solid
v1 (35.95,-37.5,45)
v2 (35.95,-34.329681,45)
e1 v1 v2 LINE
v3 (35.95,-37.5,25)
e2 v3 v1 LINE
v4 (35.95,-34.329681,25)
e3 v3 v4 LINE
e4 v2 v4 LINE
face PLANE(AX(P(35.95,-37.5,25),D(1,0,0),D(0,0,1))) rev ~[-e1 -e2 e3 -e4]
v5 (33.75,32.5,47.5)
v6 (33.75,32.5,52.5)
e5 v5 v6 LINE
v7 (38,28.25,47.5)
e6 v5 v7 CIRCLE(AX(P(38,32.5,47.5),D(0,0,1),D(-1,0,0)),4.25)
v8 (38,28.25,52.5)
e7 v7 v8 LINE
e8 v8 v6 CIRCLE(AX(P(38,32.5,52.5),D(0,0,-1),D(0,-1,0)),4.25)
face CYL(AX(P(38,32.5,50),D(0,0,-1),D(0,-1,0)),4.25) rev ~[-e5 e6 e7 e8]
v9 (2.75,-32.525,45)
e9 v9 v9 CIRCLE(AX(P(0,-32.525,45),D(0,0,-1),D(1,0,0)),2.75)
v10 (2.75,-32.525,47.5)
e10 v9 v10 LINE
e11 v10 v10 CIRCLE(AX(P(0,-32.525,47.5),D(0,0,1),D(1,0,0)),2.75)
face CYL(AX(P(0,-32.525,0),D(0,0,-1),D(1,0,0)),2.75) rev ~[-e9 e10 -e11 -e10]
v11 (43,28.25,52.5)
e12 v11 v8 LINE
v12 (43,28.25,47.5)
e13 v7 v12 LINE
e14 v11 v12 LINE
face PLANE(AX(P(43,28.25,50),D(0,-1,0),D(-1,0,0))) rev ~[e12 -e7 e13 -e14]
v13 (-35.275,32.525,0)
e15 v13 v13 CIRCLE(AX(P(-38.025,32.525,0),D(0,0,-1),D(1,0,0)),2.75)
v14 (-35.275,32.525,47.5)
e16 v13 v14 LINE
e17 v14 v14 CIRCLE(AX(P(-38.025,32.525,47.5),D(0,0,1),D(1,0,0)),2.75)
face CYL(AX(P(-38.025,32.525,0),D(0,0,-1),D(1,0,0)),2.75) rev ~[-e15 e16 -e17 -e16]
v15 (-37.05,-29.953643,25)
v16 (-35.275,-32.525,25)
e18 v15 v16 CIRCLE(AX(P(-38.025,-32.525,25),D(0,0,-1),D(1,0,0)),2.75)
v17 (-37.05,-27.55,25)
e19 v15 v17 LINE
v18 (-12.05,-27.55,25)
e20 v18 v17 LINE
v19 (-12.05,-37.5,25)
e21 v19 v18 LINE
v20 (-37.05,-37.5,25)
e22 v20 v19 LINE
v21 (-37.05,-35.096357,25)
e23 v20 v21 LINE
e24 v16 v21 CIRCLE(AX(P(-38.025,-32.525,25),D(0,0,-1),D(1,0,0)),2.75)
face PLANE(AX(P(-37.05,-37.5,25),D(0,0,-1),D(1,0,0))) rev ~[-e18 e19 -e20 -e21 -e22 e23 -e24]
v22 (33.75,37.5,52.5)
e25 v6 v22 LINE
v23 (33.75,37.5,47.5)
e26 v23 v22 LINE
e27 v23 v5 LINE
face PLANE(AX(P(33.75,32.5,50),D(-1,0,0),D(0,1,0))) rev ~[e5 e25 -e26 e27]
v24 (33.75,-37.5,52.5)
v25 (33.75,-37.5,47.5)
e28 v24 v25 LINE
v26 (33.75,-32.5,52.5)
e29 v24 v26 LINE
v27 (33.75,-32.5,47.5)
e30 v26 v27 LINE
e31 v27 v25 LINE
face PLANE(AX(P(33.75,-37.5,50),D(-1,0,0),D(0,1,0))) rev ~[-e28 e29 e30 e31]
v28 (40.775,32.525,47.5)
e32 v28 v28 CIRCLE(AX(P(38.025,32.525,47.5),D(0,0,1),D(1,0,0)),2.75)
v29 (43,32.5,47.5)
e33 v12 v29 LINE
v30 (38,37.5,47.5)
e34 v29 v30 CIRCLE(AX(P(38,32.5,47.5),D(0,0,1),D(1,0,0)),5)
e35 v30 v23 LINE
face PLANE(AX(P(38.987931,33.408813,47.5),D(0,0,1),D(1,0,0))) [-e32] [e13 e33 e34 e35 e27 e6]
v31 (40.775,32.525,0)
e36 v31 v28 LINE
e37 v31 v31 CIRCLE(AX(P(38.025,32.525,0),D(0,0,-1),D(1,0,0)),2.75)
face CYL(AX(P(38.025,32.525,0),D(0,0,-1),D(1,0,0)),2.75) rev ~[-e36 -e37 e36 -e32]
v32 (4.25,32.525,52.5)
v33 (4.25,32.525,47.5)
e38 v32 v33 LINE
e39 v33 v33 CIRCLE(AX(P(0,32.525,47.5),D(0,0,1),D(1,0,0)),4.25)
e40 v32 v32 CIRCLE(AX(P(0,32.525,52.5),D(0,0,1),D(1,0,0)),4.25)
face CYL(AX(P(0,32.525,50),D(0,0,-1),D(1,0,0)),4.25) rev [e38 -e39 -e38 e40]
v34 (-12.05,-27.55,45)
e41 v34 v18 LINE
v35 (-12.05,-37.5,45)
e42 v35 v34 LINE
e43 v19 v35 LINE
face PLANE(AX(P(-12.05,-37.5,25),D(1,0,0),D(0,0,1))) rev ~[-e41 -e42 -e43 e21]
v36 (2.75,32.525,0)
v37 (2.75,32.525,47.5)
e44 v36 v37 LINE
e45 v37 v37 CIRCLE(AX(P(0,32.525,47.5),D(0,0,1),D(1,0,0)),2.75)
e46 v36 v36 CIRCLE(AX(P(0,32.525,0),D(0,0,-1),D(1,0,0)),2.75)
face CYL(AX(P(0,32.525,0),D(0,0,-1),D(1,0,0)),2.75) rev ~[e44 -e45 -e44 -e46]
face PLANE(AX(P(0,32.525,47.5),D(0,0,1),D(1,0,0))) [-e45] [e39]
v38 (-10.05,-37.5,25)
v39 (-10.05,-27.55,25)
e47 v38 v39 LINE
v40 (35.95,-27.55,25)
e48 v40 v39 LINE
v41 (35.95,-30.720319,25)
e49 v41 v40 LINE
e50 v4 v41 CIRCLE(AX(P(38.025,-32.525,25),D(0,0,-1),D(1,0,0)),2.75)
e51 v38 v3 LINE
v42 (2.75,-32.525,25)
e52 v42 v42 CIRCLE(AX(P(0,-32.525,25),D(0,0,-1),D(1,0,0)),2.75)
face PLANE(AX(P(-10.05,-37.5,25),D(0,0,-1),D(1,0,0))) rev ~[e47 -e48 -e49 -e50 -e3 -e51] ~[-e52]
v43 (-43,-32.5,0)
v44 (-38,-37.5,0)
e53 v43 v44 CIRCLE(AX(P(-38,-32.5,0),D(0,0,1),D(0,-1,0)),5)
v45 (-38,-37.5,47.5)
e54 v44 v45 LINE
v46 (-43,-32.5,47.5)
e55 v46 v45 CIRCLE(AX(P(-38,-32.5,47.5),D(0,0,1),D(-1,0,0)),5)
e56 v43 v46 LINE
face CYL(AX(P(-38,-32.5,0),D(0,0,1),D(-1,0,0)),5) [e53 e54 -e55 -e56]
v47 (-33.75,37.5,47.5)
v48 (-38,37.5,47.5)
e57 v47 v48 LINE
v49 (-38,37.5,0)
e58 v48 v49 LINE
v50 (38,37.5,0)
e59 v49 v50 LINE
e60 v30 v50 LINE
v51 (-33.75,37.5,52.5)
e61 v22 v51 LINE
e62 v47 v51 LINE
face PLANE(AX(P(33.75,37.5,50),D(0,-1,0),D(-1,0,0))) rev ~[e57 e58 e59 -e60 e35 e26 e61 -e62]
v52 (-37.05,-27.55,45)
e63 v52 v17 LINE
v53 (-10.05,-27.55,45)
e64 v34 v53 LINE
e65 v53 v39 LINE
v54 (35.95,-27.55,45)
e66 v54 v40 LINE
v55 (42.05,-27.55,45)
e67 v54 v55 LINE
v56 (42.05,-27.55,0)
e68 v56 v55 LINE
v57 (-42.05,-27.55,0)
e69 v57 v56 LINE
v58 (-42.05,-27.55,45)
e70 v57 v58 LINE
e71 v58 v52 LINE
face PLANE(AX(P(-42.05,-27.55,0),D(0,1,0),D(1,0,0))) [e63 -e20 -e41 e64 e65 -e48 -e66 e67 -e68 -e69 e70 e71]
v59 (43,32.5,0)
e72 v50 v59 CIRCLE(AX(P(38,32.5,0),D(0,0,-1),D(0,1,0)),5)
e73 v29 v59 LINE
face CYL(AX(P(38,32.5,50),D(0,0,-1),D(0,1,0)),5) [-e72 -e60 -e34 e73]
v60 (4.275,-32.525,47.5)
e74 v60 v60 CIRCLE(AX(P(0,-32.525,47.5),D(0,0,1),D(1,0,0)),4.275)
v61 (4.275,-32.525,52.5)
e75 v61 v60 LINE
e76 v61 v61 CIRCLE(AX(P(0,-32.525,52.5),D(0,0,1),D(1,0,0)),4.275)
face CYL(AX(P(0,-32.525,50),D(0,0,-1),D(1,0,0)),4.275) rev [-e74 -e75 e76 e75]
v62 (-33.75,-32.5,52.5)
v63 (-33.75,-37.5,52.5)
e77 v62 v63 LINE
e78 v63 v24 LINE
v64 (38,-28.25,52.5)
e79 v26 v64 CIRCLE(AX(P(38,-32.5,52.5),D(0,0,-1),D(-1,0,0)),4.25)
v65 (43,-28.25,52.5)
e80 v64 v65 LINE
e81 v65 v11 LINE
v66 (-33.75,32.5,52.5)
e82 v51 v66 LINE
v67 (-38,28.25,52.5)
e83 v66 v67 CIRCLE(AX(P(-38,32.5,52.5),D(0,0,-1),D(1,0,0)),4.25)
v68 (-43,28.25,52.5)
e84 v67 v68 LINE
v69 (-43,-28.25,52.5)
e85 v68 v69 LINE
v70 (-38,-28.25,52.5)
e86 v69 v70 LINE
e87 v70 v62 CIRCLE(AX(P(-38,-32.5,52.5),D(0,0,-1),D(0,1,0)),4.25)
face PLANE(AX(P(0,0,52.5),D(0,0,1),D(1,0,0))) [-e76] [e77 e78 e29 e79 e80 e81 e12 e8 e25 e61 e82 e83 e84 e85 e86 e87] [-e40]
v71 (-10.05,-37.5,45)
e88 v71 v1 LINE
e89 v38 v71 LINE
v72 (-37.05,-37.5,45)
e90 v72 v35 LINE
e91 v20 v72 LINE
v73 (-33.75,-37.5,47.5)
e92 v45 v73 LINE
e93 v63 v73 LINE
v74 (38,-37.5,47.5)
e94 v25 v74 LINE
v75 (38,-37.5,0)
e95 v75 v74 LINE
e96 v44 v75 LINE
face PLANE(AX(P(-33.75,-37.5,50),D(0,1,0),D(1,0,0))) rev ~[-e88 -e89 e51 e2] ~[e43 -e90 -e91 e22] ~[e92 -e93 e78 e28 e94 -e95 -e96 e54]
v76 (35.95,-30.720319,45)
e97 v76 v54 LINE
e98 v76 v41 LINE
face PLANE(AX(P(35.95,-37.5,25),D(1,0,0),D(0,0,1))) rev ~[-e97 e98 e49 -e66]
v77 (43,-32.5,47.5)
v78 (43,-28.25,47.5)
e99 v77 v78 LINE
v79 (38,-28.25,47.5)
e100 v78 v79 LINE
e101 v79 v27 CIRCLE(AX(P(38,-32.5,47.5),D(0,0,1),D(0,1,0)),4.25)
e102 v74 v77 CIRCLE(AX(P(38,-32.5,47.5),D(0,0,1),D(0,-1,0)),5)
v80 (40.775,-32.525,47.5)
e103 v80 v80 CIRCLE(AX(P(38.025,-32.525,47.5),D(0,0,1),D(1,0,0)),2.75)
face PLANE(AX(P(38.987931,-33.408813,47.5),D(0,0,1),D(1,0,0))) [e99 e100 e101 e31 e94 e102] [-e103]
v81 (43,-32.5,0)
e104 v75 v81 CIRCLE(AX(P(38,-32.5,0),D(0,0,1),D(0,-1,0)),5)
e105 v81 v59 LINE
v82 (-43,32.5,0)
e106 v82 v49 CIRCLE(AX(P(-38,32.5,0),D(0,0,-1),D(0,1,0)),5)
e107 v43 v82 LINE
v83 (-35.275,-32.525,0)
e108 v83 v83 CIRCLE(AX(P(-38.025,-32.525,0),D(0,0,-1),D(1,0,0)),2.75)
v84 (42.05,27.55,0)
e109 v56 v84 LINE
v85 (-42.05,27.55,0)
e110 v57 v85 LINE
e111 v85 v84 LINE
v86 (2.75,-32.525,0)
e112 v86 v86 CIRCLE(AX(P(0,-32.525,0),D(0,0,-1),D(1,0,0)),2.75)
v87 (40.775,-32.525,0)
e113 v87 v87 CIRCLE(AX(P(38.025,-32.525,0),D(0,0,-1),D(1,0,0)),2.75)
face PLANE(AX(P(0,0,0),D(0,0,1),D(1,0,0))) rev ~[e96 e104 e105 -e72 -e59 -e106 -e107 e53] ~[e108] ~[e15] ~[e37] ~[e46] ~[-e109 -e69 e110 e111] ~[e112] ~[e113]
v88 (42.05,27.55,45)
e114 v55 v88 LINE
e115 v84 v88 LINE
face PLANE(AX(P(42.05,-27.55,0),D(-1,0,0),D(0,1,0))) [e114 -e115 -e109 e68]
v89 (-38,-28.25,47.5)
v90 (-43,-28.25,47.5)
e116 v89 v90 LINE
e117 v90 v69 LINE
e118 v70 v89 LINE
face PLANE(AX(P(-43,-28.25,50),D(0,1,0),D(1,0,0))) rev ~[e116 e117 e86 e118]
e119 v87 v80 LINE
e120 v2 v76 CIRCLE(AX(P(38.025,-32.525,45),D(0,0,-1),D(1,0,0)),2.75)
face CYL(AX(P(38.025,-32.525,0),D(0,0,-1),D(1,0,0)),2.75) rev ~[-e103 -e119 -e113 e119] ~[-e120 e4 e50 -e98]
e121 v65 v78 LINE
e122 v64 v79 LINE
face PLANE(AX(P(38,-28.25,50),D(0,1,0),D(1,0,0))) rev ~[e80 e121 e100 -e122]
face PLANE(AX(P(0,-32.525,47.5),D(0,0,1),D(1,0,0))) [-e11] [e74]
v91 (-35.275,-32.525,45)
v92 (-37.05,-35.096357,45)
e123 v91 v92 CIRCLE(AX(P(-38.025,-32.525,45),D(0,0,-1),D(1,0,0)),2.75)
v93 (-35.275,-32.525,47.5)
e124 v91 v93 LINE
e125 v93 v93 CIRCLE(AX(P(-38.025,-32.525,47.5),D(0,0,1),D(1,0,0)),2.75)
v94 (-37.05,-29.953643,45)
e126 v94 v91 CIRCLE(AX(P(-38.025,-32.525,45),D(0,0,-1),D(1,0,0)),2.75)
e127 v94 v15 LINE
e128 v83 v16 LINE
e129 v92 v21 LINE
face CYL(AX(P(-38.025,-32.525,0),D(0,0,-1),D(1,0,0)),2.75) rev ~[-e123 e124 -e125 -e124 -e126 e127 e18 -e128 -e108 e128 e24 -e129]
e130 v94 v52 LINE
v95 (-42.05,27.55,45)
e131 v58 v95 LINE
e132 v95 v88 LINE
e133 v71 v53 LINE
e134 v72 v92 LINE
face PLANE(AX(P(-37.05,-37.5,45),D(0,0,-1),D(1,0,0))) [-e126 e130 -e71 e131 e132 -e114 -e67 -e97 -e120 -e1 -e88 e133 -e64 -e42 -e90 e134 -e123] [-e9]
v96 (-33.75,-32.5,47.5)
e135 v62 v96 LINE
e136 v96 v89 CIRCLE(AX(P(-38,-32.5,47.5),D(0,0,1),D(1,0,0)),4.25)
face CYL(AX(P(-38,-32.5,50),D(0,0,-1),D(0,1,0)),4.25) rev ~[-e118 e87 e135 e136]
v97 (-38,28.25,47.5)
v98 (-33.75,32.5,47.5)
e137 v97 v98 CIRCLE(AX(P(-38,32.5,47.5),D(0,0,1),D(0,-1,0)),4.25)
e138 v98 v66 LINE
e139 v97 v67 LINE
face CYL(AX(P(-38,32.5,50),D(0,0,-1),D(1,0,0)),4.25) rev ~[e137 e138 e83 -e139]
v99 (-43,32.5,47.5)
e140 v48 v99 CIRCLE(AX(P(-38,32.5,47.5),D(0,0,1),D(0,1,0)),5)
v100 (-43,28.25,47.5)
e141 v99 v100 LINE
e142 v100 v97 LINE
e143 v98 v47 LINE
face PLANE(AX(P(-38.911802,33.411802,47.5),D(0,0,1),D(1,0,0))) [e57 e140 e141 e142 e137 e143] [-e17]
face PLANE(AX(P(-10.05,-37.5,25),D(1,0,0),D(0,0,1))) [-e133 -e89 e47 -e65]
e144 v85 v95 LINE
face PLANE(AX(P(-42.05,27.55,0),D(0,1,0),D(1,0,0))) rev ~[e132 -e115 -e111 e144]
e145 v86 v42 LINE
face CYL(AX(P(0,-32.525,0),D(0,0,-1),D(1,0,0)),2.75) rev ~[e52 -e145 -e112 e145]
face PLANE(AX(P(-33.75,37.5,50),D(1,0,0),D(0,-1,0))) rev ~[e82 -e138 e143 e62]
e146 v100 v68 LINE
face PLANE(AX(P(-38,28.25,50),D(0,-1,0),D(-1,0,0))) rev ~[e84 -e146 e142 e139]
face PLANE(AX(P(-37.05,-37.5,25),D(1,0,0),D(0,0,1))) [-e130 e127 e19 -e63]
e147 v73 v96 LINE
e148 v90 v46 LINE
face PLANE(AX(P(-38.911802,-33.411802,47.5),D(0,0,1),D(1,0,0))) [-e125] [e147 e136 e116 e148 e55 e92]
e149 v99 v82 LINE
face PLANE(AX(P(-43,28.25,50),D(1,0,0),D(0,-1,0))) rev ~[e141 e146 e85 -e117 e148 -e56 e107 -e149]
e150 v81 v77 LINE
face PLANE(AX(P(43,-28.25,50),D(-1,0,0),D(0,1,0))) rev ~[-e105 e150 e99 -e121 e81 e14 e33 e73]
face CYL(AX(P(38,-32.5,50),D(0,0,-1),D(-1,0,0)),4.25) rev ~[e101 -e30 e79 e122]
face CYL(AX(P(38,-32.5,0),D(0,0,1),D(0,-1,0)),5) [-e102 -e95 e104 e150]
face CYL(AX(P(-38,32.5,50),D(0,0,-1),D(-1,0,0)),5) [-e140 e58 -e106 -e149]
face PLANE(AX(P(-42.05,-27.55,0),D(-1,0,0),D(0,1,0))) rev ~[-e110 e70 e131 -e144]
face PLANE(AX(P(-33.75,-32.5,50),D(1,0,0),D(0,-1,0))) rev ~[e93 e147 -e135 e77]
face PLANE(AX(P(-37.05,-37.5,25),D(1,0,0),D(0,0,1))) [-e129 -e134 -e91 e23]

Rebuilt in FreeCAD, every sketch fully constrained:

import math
import FreeCAD as App
import Part
import Sketcher


def edges_at(feature, points):
    """Names of the edges that pass closest to the given points."""
    edges = feature.Shape.Edges
    near = lambda p: min(range(len(edges)), key=lambda i: edges[i].distToShape(Part.Vertex(*p))[0])
    return sorted({f"Edge{near(p) + 1}" for p in points})

doc = App.newDocument("Part")
params = doc.addObject("Spreadsheet::Sheet", "Params")
for row, (alias, value) in enumerate([
    ("sketch1_width", "86 mm"),
    ("sketch1_height", "75 mm"),
    ("sketch1_width2", "84.1 mm"),
    ("sketch1_height2", "55.1 mm"),
    ("pad1_length", "45 mm"),
    ("sketch2_width", "86 mm"),
    ("sketch2_height", "75 mm"),
    ("pad2_length", "5 mm"),
    ("sketch3_width", "25 mm"),
    ("sketch3_width2", "46 mm"),
    ("sketch3_height", "20 mm"),
    ("pocket1_length", "25 mm"),
    ("sketch4_diameter", "5.5 mm"),
    ("fillet_radius", "5 mm"),
    ("sketch5_radius", "5 mm"),
    ("sketch5_diameter", "5.5 mm"),
    ("sketch5_diameter2", "8.5 mm"),
    ("sketch5_diameter3", "8.55 mm"),
    ("pocket3_length", "2.5 mm"),
    ("sketch6_diameter", "8.5 mm"),
    ("sketch6_diameter2", "8.55 mm"),
    ("sketch6_width", "5 mm"),
    ("sketch6_width2", "67.5 mm"),
    ("sketch6_height", "56.5 mm"),
    ("pad3_length", "2.5 mm"),
], start=1):
    params.set(f"A{row}", alias)
    params.set(f"B{row}", "=" + value)
    params.setAlias(f"B{row}", alias)

body = doc.addObject("PartDesign::Body", "Body")

# Sketch on XY plane
sketch1 = body.newObject("Sketcher::SketchObject", "Sketch")
sketch1.AttachmentSupport = (doc.getObject("XY_Plane"), [""])
sketch1.MapMode = "FlatFace"
sketch1.addGeometry(Part.LineSegment(App.Vector(-43, 38, 0), App.Vector(-43, -38, 0)), False)
sketch1.addGeometry(Part.LineSegment(App.Vector(-43, -38, 0), App.Vector(43, -38, 0)), False)
sketch1.addGeometry(Part.LineSegment(App.Vector(43, -38, 0), App.Vector(43, 38, 0)), False)
sketch1.addGeometry(Part.LineSegment(App.Vector(43, 38, 0), App.Vector(-43, 38, 0)), False)
sketch1.addGeometry(Part.LineSegment(App.Vector(42, -28, 0), App.Vector(-42, -28, 0)), False)
sketch1.addGeometry(Part.LineSegment(App.Vector(-42, -28, 0), App.Vector(-42, 28, 0)), False)
sketch1.addGeometry(Part.LineSegment(App.Vector(-42, 28, 0), App.Vector(42, 28, 0)), False)
sketch1.addGeometry(Part.LineSegment(App.Vector(42, 28, 0), App.Vector(42, -28, 0)), False)
sketch1.addConstraint(Sketcher.Constraint("Coincident", 0, 2, 1, 1))
sketch1.addConstraint(Sketcher.Constraint("Coincident", 1, 2, 2, 1))
sketch1.addConstraint(Sketcher.Constraint("Coincident", 2, 2, 3, 1))
sketch1.addConstraint(Sketcher.Constraint("Coincident", 3, 2, 0, 1))
sketch1.addConstraint(Sketcher.Constraint("Coincident", 4, 2, 5, 1))
sketch1.addConstraint(Sketcher.Constraint("Coincident", 5, 2, 6, 1))
sketch1.addConstraint(Sketcher.Constraint("Coincident", 6, 2, 7, 1))
sketch1.addConstraint(Sketcher.Constraint("Coincident", 7, 2, 4, 1))
sketch1.addConstraint(Sketcher.Constraint("Vertical", 0))
sketch1.addConstraint(Sketcher.Constraint("Horizontal", 1))
sketch1.addConstraint(Sketcher.Constraint("Vertical", 2))
sketch1.addConstraint(Sketcher.Constraint("Horizontal", 3))
sketch1.addConstraint(Sketcher.Constraint("Horizontal", 4))
sketch1.addConstraint(Sketcher.Constraint("Vertical", 5))
sketch1.addConstraint(Sketcher.Constraint("Horizontal", 6))
sketch1.addConstraint(Sketcher.Constraint("Vertical", 7))
sketch1.addConstraint(Sketcher.Constraint("Symmetric", 0, 2, 2, 2, -1, 1))
sketch1.addConstraint(Sketcher.Constraint("Symmetric", 4, 2, 6, 2, -1, 1))
sketch1.addConstraint(Sketcher.Constraint("DistanceX", 1, 1, 1, 2, 86.0))
sketch1.addConstraint(Sketcher.Constraint("DistanceY", 0, 2, 0, 1, 75.0))
sketch1.addConstraint(Sketcher.Constraint("DistanceX", 4, 2, 4, 1, 84.1))
sketch1.addConstraint(Sketcher.Constraint("DistanceY", 5, 1, 5, 2, 55.1))
sketch1.setExpression("Constraints[18]", "Params.sketch1_width")
sketch1.setExpression("Constraints[19]", "Params.sketch1_height")
sketch1.setExpression("Constraints[20]", "Params.sketch1_width2")
sketch1.setExpression("Constraints[21]", "Params.sketch1_height2")
pad1 = body.newObject("PartDesign::Pad", "Pad")
pad1.Profile = sketch1
pad1.setExpression("Length", "Params.pad1_length")

# Sketch on XY plane
sketch2 = body.newObject("Sketcher::SketchObject", "Sketch001")
sketch2.AttachmentSupport = (doc.getObject("XY_Plane"), [""])
sketch2.MapMode = "FlatFace"
sketch2.AttachmentOffset = App.Placement(App.Vector(0, 0, 45), App.Rotation())
sketch2.addGeometry(Part.LineSegment(App.Vector(-43, 38, 0), App.Vector(-43, -38, 0)), False)
sketch2.addGeometry(Part.LineSegment(App.Vector(-43, -38, 0), App.Vector(43, -38, 0)), False)
sketch2.addGeometry(Part.LineSegment(App.Vector(43, -38, 0), App.Vector(43, 38, 0)), False)
sketch2.addGeometry(Part.LineSegment(App.Vector(43, 38, 0), App.Vector(-43, 38, 0)), False)
sketch2.addConstraint(Sketcher.Constraint("Coincident", 0, 2, 1, 1))
sketch2.addConstraint(Sketcher.Constraint("Coincident", 1, 2, 2, 1))
sketch2.addConstraint(Sketcher.Constraint("Coincident", 2, 2, 3, 1))
sketch2.addConstraint(Sketcher.Constraint("Coincident", 3, 2, 0, 1))
sketch2.addConstraint(Sketcher.Constraint("Vertical", 0))
sketch2.addConstraint(Sketcher.Constraint("Horizontal", 1))
sketch2.addConstraint(Sketcher.Constraint("Vertical", 2))
sketch2.addConstraint(Sketcher.Constraint("Horizontal", 3))
sketch2.addConstraint(Sketcher.Constraint("Symmetric", 0, 2, 2, 2, -1, 1))
sketch2.addConstraint(Sketcher.Constraint("DistanceX", 1, 1, 1, 2, 86.0))
sketch2.addConstraint(Sketcher.Constraint("DistanceY", 0, 2, 0, 1, 75.0))
sketch2.setExpression("Constraints[9]", "Params.sketch2_width")
sketch2.setExpression("Constraints[10]", "Params.sketch2_height")
pad2 = body.newObject("PartDesign::Pad", "Pad001")
pad2.Profile = sketch2
pad2.setExpression("Length", "Params.pad2_length")

# Sketch on XZ plane
sketch3 = body.newObject("Sketcher::SketchObject", "Sketch002")
sketch3.AttachmentSupport = (doc.getObject("XZ_Plane"), [""])
sketch3.MapMode = "FlatFace"
sketch3.AttachmentOffset = App.Placement(App.Vector(0, 0, 37.5), App.Rotation())
sketch3.addGeometry(Part.LineSegment(App.Vector(-37, 45, 0), App.Vector(-37, 25, 0)), False)
sketch3.addGeometry(Part.LineSegment(App.Vector(-37, 25, 0), App.Vector(-12, 25, 0)), False)
sketch3.addGeometry(Part.LineSegment(App.Vector(-12, 25, 0), App.Vector(-12, 45, 0)), False)
sketch3.addGeometry(Part.LineSegment(App.Vector(-12, 45, 0), App.Vector(-37, 45, 0)), False)
sketch3.addGeometry(Part.LineSegment(App.Vector(-10, 45, 0), App.Vector(-10, 25, 0)), False)
sketch3.addGeometry(Part.LineSegment(App.Vector(-10, 25, 0), App.Vector(36, 25, 0)), False)
sketch3.addGeometry(Part.LineSegment(App.Vector(36, 25, 0), App.Vector(36, 45, 0)), False)
sketch3.addGeometry(Part.LineSegment(App.Vector(36, 45, 0), App.Vector(-10, 45, 0)), False)
sketch3.addConstraint(Sketcher.Constraint("Coincident", 0, 2, 1, 1))
sketch3.addConstraint(Sketcher.Constraint("Coincident", 1, 2, 2, 1))
sketch3.addConstraint(Sketcher.Constraint("Coincident", 2, 2, 3, 1))
sketch3.addConstraint(Sketcher.Constraint("Coincident", 3, 2, 0, 1))
sketch3.addConstraint(Sketcher.Constraint("Coincident", 4, 2, 5, 1))
sketch3.addConstraint(Sketcher.Constraint("Coincident", 5, 2, 6, 1))
sketch3.addConstraint(Sketcher.Constraint("Coincident", 6, 2, 7, 1))
sketch3.addConstraint(Sketcher.Constraint("Coincident", 7, 2, 4, 1))
sketch3.addConstraint(Sketcher.Constraint("Vertical", 0))
sketch3.addConstraint(Sketcher.Constraint("Horizontal", 1))
sketch3.addConstraint(Sketcher.Constraint("Vertical", 2))
sketch3.addConstraint(Sketcher.Constraint("Horizontal", 3))
sketch3.addConstraint(Sketcher.Constraint("Vertical", 4))
sketch3.addConstraint(Sketcher.Constraint("Horizontal", 5))
sketch3.addConstraint(Sketcher.Constraint("Vertical", 6))
sketch3.addConstraint(Sketcher.Constraint("Horizontal", 7))
sketch3.addConstraint(Sketcher.Constraint("Horizontal", 1, 2, 4, 2))
sketch3.addConstraint(Sketcher.Constraint("Horizontal", 3, 2, 6, 2))
sketch3.addConstraint(Sketcher.Constraint("DistanceX", 1, 1, 1, 2, 25.0))
sketch3.addConstraint(Sketcher.Constraint("DistanceX", 5, 1, 5, 2, 46.0))
sketch3.addConstraint(Sketcher.Constraint("DistanceY", 0, 2, 0, 1, 20.0))
sketch3.addConstraint(Sketcher.Constraint("DistanceY", -1, 1, 0, 2, 25.0))
sketch3.addConstraint(Sketcher.Constraint("DistanceX", 1, 2, 4, 2, 2.0))
sketch3.addConstraint(Sketcher.Constraint("DistanceX", 0, 2, -1, 1, 37.05))
sketch3.setExpression("Constraints[18]", "Params.sketch3_width")
sketch3.setExpression("Constraints[19]", "Params.sketch3_width2")
sketch3.setExpression("Constraints[20]", "Params.sketch3_height")
pocket1 = body.newObject("PartDesign::Pocket", "Pocket")
pocket1.Profile = sketch3
pocket1.setExpression("Length", "Params.pocket1_length")

# Sketch on XY plane
sketch4 = body.newObject("Sketcher::SketchObject", "Sketch003")
sketch4.AttachmentSupport = (doc.getObject("XY_Plane"), [""])
sketch4.MapMode = "FlatFace"
sketch4.addGeometry(Part.Circle(App.Vector(-38, -32.5, 0), App.Vector(0, 0, 1), 2.8), False)
sketch4.addGeometry(Part.Circle(App.Vector(0, -32.5, 0), App.Vector(0, 0, 1), 2.8), False)
sketch4.addGeometry(Part.Circle(App.Vector(38, -32.5, 0), App.Vector(0, 0, 1), 2.8), False)
sketch4.addGeometry(Part.Circle(App.Vector(38, 32.5, 0), App.Vector(0, 0, 1), 2.8), False)
sketch4.addGeometry(Part.Circle(App.Vector(0, 32.5, 0), App.Vector(0, 0, 1), 2.8), False)
sketch4.addGeometry(Part.Circle(App.Vector(-38, 32.5, 0), App.Vector(0, 0, 1), 2.8), False)
sketch4.addConstraint(Sketcher.Constraint("Equal", 0, 1))
sketch4.addConstraint(Sketcher.Constraint("Equal", 1, 2))
sketch4.addConstraint(Sketcher.Constraint("Equal", 2, 3))
sketch4.addConstraint(Sketcher.Constraint("Equal", 3, 4))
sketch4.addConstraint(Sketcher.Constraint("Equal", 4, 5))
sketch4.addConstraint(Sketcher.Constraint("Symmetric", 0, 3, 3, 3, -1, 1))
sketch4.addConstraint(Sketcher.Constraint("Symmetric", 1, 3, 4, 3, -1, 1))
sketch4.addConstraint(Sketcher.Constraint("Symmetric", 2, 3, 5, 3, -1, 1))
sketch4.addConstraint(Sketcher.Constraint("Symmetric", 0, 3, 2, 3, -2))
sketch4.addConstraint(Sketcher.Constraint("PointOnObject", 1, 3, -2))
sketch4.addConstraint(Sketcher.Constraint("Horizontal", 0, 3, 1, 3))
sketch4.addConstraint(Sketcher.Constraint("Diameter", 0, 5.5))
sketch4.addConstraint(Sketcher.Constraint("DistanceX", 0, 3, 2, 3, 76.05))
sketch4.addConstraint(Sketcher.Constraint("DistanceY", 2, 3, 3, 3, 65.05))
sketch4.setExpression("Constraints[11]", "Params.sketch4_diameter")
pocket2 = body.newObject("PartDesign::Pocket", "Pocket001")
pocket2.Profile = sketch4
pocket2.Type = "ThroughAll"
pocket2.Reversed = True
doc.recompute()

fillet = body.newObject("PartDesign::Fillet", "Fillet")
fillet.Base = (pocket2, edges_at(pocket2, [
    (43, -37.5, 25),
    (43, 37.5, 25),
    (-43, 37.5, 25),
    (-43, -37.5, 25),
]))
fillet.setExpression("Radius", "Params.fillet_radius")

# Sketch on XY plane
sketch5 = body.newObject("Sketcher::SketchObject", "Sketch004")
sketch5.AttachmentSupport = (doc.getObject("XY_Plane"), [""])
sketch5.MapMode = "FlatFace"
sketch5.AttachmentOffset = App.Placement(App.Vector(0, 0, 50), App.Rotation())
sketch5.addGeometry(Part.LineSegment(App.Vector(-38, -37.5, 0), App.Vector(-33.8, -37.5, 0)), False)
sketch5.addGeometry(Part.LineSegment(App.Vector(-33.8, -37.5, 0), App.Vector(-33.8, -32.5, 0)), False)
sketch5.addGeometry(Part.ArcOfCircle(Part.Circle(App.Vector(-38, -32.5, 0), App.Vector(0, 0, 1), 4.2), math.radians(0), math.radians(90)), False)
sketch5.addGeometry(Part.LineSegment(App.Vector(-38, -28.2, 0), App.Vector(-43, -28.2, 0)), False)
sketch5.addGeometry(Part.LineSegment(App.Vector(-43, -28.2, 0), App.Vector(-43, -32.5, 0)), False)
sketch5.addGeometry(Part.ArcOfCircle(Part.Circle(App.Vector(-38, -32.5, 0), App.Vector(0, 0, 1), 5), math.radians(180), math.radians(270)), False)
sketch5.addGeometry(Part.Circle(App.Vector(-38, -32.5, 0), App.Vector(0, 0, 1), 2.8), False)
sketch5.addGeometry(Part.Circle(App.Vector(0, -32.5, 0), App.Vector(0, 0, 1), 4.3), False)
sketch5.addGeometry(Part.Circle(App.Vector(0, -32.5, 0), App.Vector(0, 0, 1), 2.8), False)
sketch5.addGeometry(Part.ArcOfCircle(Part.Circle(App.Vector(38, -32.5, 0), App.Vector(0, 0, 1), 5), math.radians(-90), math.radians(0)), False)
sketch5.addGeometry(Part.LineSegment(App.Vector(43, -32.5, 0), App.Vector(43, -28.2, 0)), False)
sketch5.addGeometry(Part.LineSegment(App.Vector(43, -28.2, 0), App.Vector(38, -28.2, 0)), False)
sketch5.addGeometry(Part.ArcOfCircle(Part.Circle(App.Vector(38, -32.5, 0), App.Vector(0, 0, 1), 4.2), math.radians(90), math.radians(180)), False)
sketch5.addGeometry(Part.LineSegment(App.Vector(33.8, -32.5, 0), App.Vector(33.8, -37.5, 0)), False)
sketch5.addGeometry(Part.LineSegment(App.Vector(33.8, -37.5, 0), App.Vector(38, -37.5, 0)), False)
sketch5.addGeometry(Part.Circle(App.Vector(38, -32.5, 0), App.Vector(0, 0, 1), 2.8), False)
sketch5.addGeometry(Part.Circle(App.Vector(0, 32.5, 0), App.Vector(0, 0, 1), 4.2), False)
sketch5.addGeometry(Part.Circle(App.Vector(0, 32.5, 0), App.Vector(0, 0, 1), 2.8), False)
sketch5.addGeometry(Part.LineSegment(App.Vector(-33.8, 32.5, 0), App.Vector(-33.8, 37.5, 0)), False)
sketch5.addGeometry(Part.LineSegment(App.Vector(-33.8, 37.5, 0), App.Vector(-38, 37.5, 0)), False)
sketch5.addGeometry(Part.ArcOfCircle(Part.Circle(App.Vector(-38, 32.5, 0), App.Vector(0, 0, 1), 5), math.radians(90), math.radians(180)), False)
sketch5.addGeometry(Part.LineSegment(App.Vector(-43, 32.5, 0), App.Vector(-43, 28.2, 0)), False)
sketch5.addGeometry(Part.LineSegment(App.Vector(-43, 28.2, 0), App.Vector(-38, 28.2, 0)), False)
sketch5.addGeometry(Part.ArcOfCircle(Part.Circle(App.Vector(-38, 32.5, 0), App.Vector(0, 0, 1), 4.2), math.radians(-90), math.radians(0)), False)
sketch5.addGeometry(Part.Circle(App.Vector(-38, 32.5, 0), App.Vector(0, 0, 1), 2.8), False)
sketch5.addGeometry(Part.LineSegment(App.Vector(38, 28.2, 0), App.Vector(43, 28.2, 0)), False)
sketch5.addGeometry(Part.LineSegment(App.Vector(43, 28.2, 0), App.Vector(43, 32.5, 0)), False)
sketch5.addGeometry(Part.ArcOfCircle(Part.Circle(App.Vector(38, 32.5, 0), App.Vector(0, 0, 1), 5), math.radians(0), math.radians(90)), False)
sketch5.addGeometry(Part.LineSegment(App.Vector(38, 37.5, 0), App.Vector(33.8, 37.5, 0)), False)
sketch5.addGeometry(Part.LineSegment(App.Vector(33.8, 37.5, 0), App.Vector(33.8, 32.5, 0)), False)
sketch5.addGeometry(Part.ArcOfCircle(Part.Circle(App.Vector(38, 32.5, 0), App.Vector(0, 0, 1), 4.2), math.radians(180), math.radians(270)), False)
sketch5.addGeometry(Part.Circle(App.Vector(38, 32.5, 0), App.Vector(0, 0, 1), 2.8), False)
sketch5.addConstraint(Sketcher.Constraint("Coincident", 0, 2, 1, 1))
sketch5.addConstraint(Sketcher.Constraint("Tangent", 1, 2, 2, 1))
sketch5.addConstraint(Sketcher.Constraint("Tangent", 2, 2, 3, 1))
sketch5.addConstraint(Sketcher.Constraint("Coincident", 3, 2, 4, 1))
sketch5.addConstraint(Sketcher.Constraint("Tangent", 4, 2, 5, 1))
sketch5.addConstraint(Sketcher.Constraint("Tangent", 5, 2, 0, 1))
sketch5.addConstraint(Sketcher.Constraint("Tangent", 9, 2, 10, 1))
sketch5.addConstraint(Sketcher.Constraint("Coincident", 10, 2, 11, 1))
sketch5.addConstraint(Sketcher.Constraint("Tangent", 11, 2, 12, 1))
sketch5.addConstraint(Sketcher.Constraint("Tangent", 12, 2, 13, 1))
sketch5.addConstraint(Sketcher.Constraint("Coincident", 13, 2, 14, 1))
sketch5.addConstraint(Sketcher.Constraint("Tangent", 14, 2, 9, 1))
sketch5.addConstraint(Sketcher.Constraint("Coincident", 18, 2, 19, 1))
sketch5.addConstraint(Sketcher.Constraint("Tangent", 19, 2, 20, 1))
sketch5.addConstraint(Sketcher.Constraint("Tangent", 20, 2, 21, 1))
sketch5.addConstraint(Sketcher.Constraint("Coincident", 21, 2, 22, 1))
sketch5.addConstraint(Sketcher.Constraint("Tangent", 22, 2, 23, 1))
sketch5.addConstraint(Sketcher.Constraint("Tangent", 23, 2, 18, 1))
sketch5.addConstraint(Sketcher.Constraint("Coincident", 25, 2, 26, 1))
sketch5.addConstraint(Sketcher.Constraint("Tangent", 26, 2, 27, 1))
sketch5.addConstraint(Sketcher.Constraint("Tangent", 27, 2, 28, 1))
sketch5.addConstraint(Sketcher.Constraint("Coincident", 28, 2, 29, 1))
sketch5.addConstraint(Sketcher.Constraint("Tangent", 29, 2, 30, 1))
sketch5.addConstraint(Sketcher.Constraint("Tangent", 30, 2, 25, 1))
sketch5.addConstraint(Sketcher.Constraint("Horizontal", 0))
sketch5.addConstraint(Sketcher.Constraint("Vertical", 1))
sketch5.addConstraint(Sketcher.Constraint("Horizontal", 3))
sketch5.addConstraint(Sketcher.Constraint("Vertical", 4))
sketch5.addConstraint(Sketcher.Constraint("Vertical", 10))
sketch5.addConstraint(Sketcher.Constraint("Horizontal", 11))
sketch5.addConstraint(Sketcher.Constraint("Vertical", 13))
sketch5.addConstraint(Sketcher.Constraint("Horizontal", 14))
sketch5.addConstraint(Sketcher.Constraint("Vertical", 18))
sketch5.addConstraint(Sketcher.Constraint("Horizontal", 19))
sketch5.addConstraint(Sketcher.Constraint("Vertical", 21))
sketch5.addConstraint(Sketcher.Constraint("Horizontal", 22))
sketch5.addConstraint(Sketcher.Constraint("Horizontal", 25))
sketch5.addConstraint(Sketcher.Constraint("Vertical", 26))
sketch5.addConstraint(Sketcher.Constraint("Horizontal", 28))
sketch5.addConstraint(Sketcher.Constraint("Vertical", 29))
sketch5.addConstraint(Sketcher.Constraint("Coincident", 5, 3, 2, 3))
sketch5.addConstraint(Sketcher.Constraint("Coincident", 8, 3, 7, 3))
sketch5.addConstraint(Sketcher.Constraint("Coincident", 12, 3, 9, 3))
sketch5.addConstraint(Sketcher.Constraint("Coincident", 17, 3, 16, 3))
sketch5.addConstraint(Sketcher.Constraint("Coincident", 23, 3, 20, 3))
sketch5.addConstraint(Sketcher.Constraint("Coincident", 30, 3, 27, 3))
sketch5.addConstraint(Sketcher.Constraint("Equal", 6, 8))
sketch5.addConstraint(Sketcher.Constraint("Equal", 5, 9))
sketch5.addConstraint(Sketcher.Constraint("Equal", 2, 12))
sketch5.addConstraint(Sketcher.Constraint("Equal", 8, 15))
sketch5.addConstraint(Sketcher.Constraint("Equal", 12, 16))
sketch5.addConstraint(Sketcher.Constraint("Equal", 15, 17))
sketch5.addConstraint(Sketcher.Constraint("Equal", 9, 20))
sketch5.addConstraint(Sketcher.Constraint("Equal", 16, 23))
sketch5.addConstraint(Sketcher.Constraint("Equal", 17, 24))
sketch5.addConstraint(Sketcher.Constraint("Equal", 20, 27))
sketch5.addConstraint(Sketcher.Constraint("Equal", 23, 30))
sketch5.addConstraint(Sketcher.Constraint("Equal", 24, 31))
sketch5.addConstraint(Sketcher.Constraint("Symmetric", 7, 3, 16, 3, -1, 1))
sketch5.addConstraint(Sketcher.Constraint("Symmetric", 9, 3, 20, 3, -1, 1))
sketch5.addConstraint(Sketcher.Constraint("Symmetric", 15, 3, 24, 3, -1, 1))
sketch5.addConstraint(Sketcher.Constraint("Symmetric", 2, 3, 27, 3, -1, 1))
sketch5.addConstraint(Sketcher.Constraint("Symmetric", 6, 3, 31, 3, -1, 1))
sketch5.addConstraint(Sketcher.Constraint("Symmetric", 2, 3, 9, 3, -2))
sketch5.addConstraint(Sketcher.Constraint("Symmetric", 6, 3, 15, 3, -2))
sketch5.addConstraint(Sketcher.Constraint("PointOnObject", 7, 3, -2))
sketch5.addConstraint(Sketcher.Constraint("Horizontal", 6, 3, 7, 3))
sketch5.addConstraint(Sketcher.Constraint("Radius", 5, 5.0))
sketch5.addConstraint(Sketcher.Constraint("Diameter", 6, 5.5))
sketch5.addConstraint(Sketcher.Constraint("Diameter", 16, 8.5))
sketch5.addConstraint(Sketcher.Constraint("Diameter", 7, 8.55))
sketch5.addConstraint(Sketcher.Constraint("DistanceX", 2, 3, -1, 1, 38.0))
sketch5.addConstraint(Sketcher.Constraint("DistanceY", 2, 3, 20, 3, 65.0))
sketch5.addConstraint(Sketcher.Constraint("DistanceY", 7, 3, 16, 3, 65.05))
sketch5.addConstraint(Sketcher.Constraint("DistanceX", 6, 3, -1, 1, 38.025))
sketch5.setExpression("Constraints[67]", "Params.sketch5_radius")
sketch5.setExpression("Constraints[68]", "Params.sketch5_diameter")
sketch5.setExpression("Constraints[69]", "Params.sketch5_diameter2")
sketch5.setExpression("Constraints[70]", "Params.sketch5_diameter3")
pocket3 = body.newObject("PartDesign::Pocket", "Pocket002")
pocket3.Profile = sketch5
pocket3.setExpression("Length", "Params.pocket3_length")

# Sketch on XY plane
sketch6 = body.newObject("Sketcher::SketchObject", "Sketch005")
sketch6.AttachmentSupport = (doc.getObject("XY_Plane"), [""])
sketch6.MapMode = "FlatFace"
sketch6.AttachmentOffset = App.Placement(App.Vector(0, 0, 50), App.Rotation())
sketch6.addGeometry(Part.LineSegment(App.Vector(43, 28.2, 0), App.Vector(38, 28.2, 0)), False)
sketch6.addGeometry(Part.ArcOfCircle(Part.Circle(App.Vector(38, 32.5, 0), App.Vector(0, 0, 1), 4.2), math.radians(180), math.radians(270)), False)
sketch6.addGeometry(Part.LineSegment(App.Vector(33.8, 32.5, 0), App.Vector(33.8, 37.5, 0)), False)
sketch6.addGeometry(Part.LineSegment(App.Vector(33.8, 37.5, 0), App.Vector(-33.8, 37.5, 0)), False)
sketch6.addGeometry(Part.LineSegment(App.Vector(-33.8, 37.5, 0), App.Vector(-33.8, 32.5, 0)), False)
sketch6.addGeometry(Part.ArcOfCircle(Part.Circle(App.Vector(-38, 32.5, 0), App.Vector(0, 0, 1), 4.2), math.radians(-90), math.radians(0)), False)
sketch6.addGeometry(Part.LineSegment(App.Vector(-38, 28.2, 0), App.Vector(-43, 28.2, 0)), False)
sketch6.addGeometry(Part.LineSegment(App.Vector(-43, 28.2, 0), App.Vector(-43, -28.2, 0)), False)
sketch6.addGeometry(Part.LineSegment(App.Vector(-43, -28.2, 0), App.Vector(-38, -28.2, 0)), False)
sketch6.addGeometry(Part.ArcOfCircle(Part.Circle(App.Vector(-38, -32.5, 0), App.Vector(0, 0, 1), 4.2), math.radians(0), math.radians(90)), False)
sketch6.addGeometry(Part.LineSegment(App.Vector(-33.8, -32.5, 0), App.Vector(-33.8, -37.5, 0)), False)
sketch6.addGeometry(Part.LineSegment(App.Vector(-33.8, -37.5, 0), App.Vector(33.8, -37.5, 0)), False)
sketch6.addGeometry(Part.LineSegment(App.Vector(33.8, -37.5, 0), App.Vector(33.8, -32.5, 0)), False)
sketch6.addGeometry(Part.ArcOfCircle(Part.Circle(App.Vector(38, -32.5, 0), App.Vector(0, 0, 1), 4.2), math.radians(90), math.radians(180)), False)
sketch6.addGeometry(Part.LineSegment(App.Vector(38, -28.2, 0), App.Vector(43, -28.2, 0)), False)
sketch6.addGeometry(Part.LineSegment(App.Vector(43, -28.2, 0), App.Vector(43, 28.2, 0)), False)
sketch6.addGeometry(Part.Circle(App.Vector(0, -32.5, 0), App.Vector(0, 0, 1), 4.3), False)
sketch6.addGeometry(Part.Circle(App.Vector(0, 32.5, 0), App.Vector(0, 0, 1), 4.2), False)
sketch6.addConstraint(Sketcher.Constraint("Tangent", 0, 2, 1, 2))
sketch6.addConstraint(Sketcher.Constraint("Tangent", 1, 1, 2, 1))
sketch6.addConstraint(Sketcher.Constraint("Coincident", 2, 2, 3, 1))
sketch6.addConstraint(Sketcher.Constraint("Coincident", 3, 2, 4, 1))
sketch6.addConstraint(Sketcher.Constraint("Tangent", 4, 2, 5, 2))
sketch6.addConstraint(Sketcher.Constraint("Tangent", 5, 1, 6, 1))
sketch6.addConstraint(Sketcher.Constraint("Coincident", 6, 2, 7, 1))
sketch6.addConstraint(Sketcher.Constraint("Coincident", 7, 2, 8, 1))
sketch6.addConstraint(Sketcher.Constraint("Tangent", 8, 2, 9, 2))
sketch6.addConstraint(Sketcher.Constraint("Tangent", 9, 1, 10, 1))
sketch6.addConstraint(Sketcher.Constraint("Coincident", 10, 2, 11, 1))
sketch6.addConstraint(Sketcher.Constraint("Coincident", 11, 2, 12, 1))
sketch6.addConstraint(Sketcher.Constraint("Tangent", 12, 2, 13, 2))
sketch6.addConstraint(Sketcher.Constraint("Tangent", 13, 1, 14, 1))
sketch6.addConstraint(Sketcher.Constraint("Coincident", 14, 2, 15, 1))
sketch6.addConstraint(Sketcher.Constraint("Coincident", 15, 2, 0, 1))
sketch6.addConstraint(Sketcher.Constraint("Horizontal", 0))
sketch6.addConstraint(Sketcher.Constraint("Vertical", 2))
sketch6.addConstraint(Sketcher.Constraint("Horizontal", 3))
sketch6.addConstraint(Sketcher.Constraint("Vertical", 4))
sketch6.addConstraint(Sketcher.Constraint("Horizontal", 6))
sketch6.addConstraint(Sketcher.Constraint("Vertical", 7))
sketch6.addConstraint(Sketcher.Constraint("Horizontal", 8))
sketch6.addConstraint(Sketcher.Constraint("Vertical", 10))
sketch6.addConstraint(Sketcher.Constraint("Horizontal", 11))
sketch6.addConstraint(Sketcher.Constraint("Vertical", 12))
sketch6.addConstraint(Sketcher.Constraint("Horizontal", 14))
sketch6.addConstraint(Sketcher.Constraint("Vertical", 15))
sketch6.addConstraint(Sketcher.Constraint("Equal", 1, 5))
sketch6.addConstraint(Sketcher.Constraint("Equal", 5, 9))
sketch6.addConstraint(Sketcher.Constraint("Equal", 9, 13))
sketch6.addConstraint(Sketcher.Constraint("Equal", 13, 17))
sketch6.addConstraint(Sketcher.Constraint("Symmetric", 1, 3, 9, 3, -1, 1))
sketch6.addConstraint(Sketcher.Constraint("Symmetric", 5, 3, 13, 3, -1, 1))
sketch6.addConstraint(Sketcher.Constraint("Symmetric", 16, 3, 17, 3, -1, 1))
sketch6.addConstraint(Sketcher.Constraint("Symmetric", 1, 3, 5, 3, -2))
sketch6.addConstraint(Sketcher.Constraint("PointOnObject", 16, 3, -2))
sketch6.addConstraint(Sketcher.Constraint("Equal", 0, 6))
sketch6.addConstraint(Sketcher.Constraint("Equal", 14, 2))
sketch6.addConstraint(Sketcher.Constraint("Equal", 4, 10))
sketch6.addConstraint(Sketcher.Constraint("Diameter", 17, 8.5))
sketch6.addConstraint(Sketcher.Constraint("Diameter", 16, 8.55))
sketch6.addConstraint(Sketcher.Constraint("DistanceX", 0, 2, 0, 1, 5.0))
sketch6.addConstraint(Sketcher.Constraint("DistanceX", 3, 2, 3, 1, 67.5))
sketch6.addConstraint(Sketcher.Constraint("DistanceY", 7, 2, 7, 1, 56.5))
sketch6.addConstraint(Sketcher.Constraint("DistanceY", 16, 3, 17, 3, 65.05))
sketch6.setExpression("Constraints[40]", "Params.sketch6_diameter")
sketch6.setExpression("Constraints[41]", "Params.sketch6_diameter2")
sketch6.setExpression("Constraints[42]", "Params.sketch6_width")
sketch6.setExpression("Constraints[43]", "Params.sketch6_width2")
sketch6.setExpression("Constraints[44]", "Params.sketch6_height")
pad3 = body.newObject("PartDesign::Pad", "Pad002")
pad3.Profile = sketch6
pad3.setExpression("Length", "Params.pad3_length")

doc.recompute()
